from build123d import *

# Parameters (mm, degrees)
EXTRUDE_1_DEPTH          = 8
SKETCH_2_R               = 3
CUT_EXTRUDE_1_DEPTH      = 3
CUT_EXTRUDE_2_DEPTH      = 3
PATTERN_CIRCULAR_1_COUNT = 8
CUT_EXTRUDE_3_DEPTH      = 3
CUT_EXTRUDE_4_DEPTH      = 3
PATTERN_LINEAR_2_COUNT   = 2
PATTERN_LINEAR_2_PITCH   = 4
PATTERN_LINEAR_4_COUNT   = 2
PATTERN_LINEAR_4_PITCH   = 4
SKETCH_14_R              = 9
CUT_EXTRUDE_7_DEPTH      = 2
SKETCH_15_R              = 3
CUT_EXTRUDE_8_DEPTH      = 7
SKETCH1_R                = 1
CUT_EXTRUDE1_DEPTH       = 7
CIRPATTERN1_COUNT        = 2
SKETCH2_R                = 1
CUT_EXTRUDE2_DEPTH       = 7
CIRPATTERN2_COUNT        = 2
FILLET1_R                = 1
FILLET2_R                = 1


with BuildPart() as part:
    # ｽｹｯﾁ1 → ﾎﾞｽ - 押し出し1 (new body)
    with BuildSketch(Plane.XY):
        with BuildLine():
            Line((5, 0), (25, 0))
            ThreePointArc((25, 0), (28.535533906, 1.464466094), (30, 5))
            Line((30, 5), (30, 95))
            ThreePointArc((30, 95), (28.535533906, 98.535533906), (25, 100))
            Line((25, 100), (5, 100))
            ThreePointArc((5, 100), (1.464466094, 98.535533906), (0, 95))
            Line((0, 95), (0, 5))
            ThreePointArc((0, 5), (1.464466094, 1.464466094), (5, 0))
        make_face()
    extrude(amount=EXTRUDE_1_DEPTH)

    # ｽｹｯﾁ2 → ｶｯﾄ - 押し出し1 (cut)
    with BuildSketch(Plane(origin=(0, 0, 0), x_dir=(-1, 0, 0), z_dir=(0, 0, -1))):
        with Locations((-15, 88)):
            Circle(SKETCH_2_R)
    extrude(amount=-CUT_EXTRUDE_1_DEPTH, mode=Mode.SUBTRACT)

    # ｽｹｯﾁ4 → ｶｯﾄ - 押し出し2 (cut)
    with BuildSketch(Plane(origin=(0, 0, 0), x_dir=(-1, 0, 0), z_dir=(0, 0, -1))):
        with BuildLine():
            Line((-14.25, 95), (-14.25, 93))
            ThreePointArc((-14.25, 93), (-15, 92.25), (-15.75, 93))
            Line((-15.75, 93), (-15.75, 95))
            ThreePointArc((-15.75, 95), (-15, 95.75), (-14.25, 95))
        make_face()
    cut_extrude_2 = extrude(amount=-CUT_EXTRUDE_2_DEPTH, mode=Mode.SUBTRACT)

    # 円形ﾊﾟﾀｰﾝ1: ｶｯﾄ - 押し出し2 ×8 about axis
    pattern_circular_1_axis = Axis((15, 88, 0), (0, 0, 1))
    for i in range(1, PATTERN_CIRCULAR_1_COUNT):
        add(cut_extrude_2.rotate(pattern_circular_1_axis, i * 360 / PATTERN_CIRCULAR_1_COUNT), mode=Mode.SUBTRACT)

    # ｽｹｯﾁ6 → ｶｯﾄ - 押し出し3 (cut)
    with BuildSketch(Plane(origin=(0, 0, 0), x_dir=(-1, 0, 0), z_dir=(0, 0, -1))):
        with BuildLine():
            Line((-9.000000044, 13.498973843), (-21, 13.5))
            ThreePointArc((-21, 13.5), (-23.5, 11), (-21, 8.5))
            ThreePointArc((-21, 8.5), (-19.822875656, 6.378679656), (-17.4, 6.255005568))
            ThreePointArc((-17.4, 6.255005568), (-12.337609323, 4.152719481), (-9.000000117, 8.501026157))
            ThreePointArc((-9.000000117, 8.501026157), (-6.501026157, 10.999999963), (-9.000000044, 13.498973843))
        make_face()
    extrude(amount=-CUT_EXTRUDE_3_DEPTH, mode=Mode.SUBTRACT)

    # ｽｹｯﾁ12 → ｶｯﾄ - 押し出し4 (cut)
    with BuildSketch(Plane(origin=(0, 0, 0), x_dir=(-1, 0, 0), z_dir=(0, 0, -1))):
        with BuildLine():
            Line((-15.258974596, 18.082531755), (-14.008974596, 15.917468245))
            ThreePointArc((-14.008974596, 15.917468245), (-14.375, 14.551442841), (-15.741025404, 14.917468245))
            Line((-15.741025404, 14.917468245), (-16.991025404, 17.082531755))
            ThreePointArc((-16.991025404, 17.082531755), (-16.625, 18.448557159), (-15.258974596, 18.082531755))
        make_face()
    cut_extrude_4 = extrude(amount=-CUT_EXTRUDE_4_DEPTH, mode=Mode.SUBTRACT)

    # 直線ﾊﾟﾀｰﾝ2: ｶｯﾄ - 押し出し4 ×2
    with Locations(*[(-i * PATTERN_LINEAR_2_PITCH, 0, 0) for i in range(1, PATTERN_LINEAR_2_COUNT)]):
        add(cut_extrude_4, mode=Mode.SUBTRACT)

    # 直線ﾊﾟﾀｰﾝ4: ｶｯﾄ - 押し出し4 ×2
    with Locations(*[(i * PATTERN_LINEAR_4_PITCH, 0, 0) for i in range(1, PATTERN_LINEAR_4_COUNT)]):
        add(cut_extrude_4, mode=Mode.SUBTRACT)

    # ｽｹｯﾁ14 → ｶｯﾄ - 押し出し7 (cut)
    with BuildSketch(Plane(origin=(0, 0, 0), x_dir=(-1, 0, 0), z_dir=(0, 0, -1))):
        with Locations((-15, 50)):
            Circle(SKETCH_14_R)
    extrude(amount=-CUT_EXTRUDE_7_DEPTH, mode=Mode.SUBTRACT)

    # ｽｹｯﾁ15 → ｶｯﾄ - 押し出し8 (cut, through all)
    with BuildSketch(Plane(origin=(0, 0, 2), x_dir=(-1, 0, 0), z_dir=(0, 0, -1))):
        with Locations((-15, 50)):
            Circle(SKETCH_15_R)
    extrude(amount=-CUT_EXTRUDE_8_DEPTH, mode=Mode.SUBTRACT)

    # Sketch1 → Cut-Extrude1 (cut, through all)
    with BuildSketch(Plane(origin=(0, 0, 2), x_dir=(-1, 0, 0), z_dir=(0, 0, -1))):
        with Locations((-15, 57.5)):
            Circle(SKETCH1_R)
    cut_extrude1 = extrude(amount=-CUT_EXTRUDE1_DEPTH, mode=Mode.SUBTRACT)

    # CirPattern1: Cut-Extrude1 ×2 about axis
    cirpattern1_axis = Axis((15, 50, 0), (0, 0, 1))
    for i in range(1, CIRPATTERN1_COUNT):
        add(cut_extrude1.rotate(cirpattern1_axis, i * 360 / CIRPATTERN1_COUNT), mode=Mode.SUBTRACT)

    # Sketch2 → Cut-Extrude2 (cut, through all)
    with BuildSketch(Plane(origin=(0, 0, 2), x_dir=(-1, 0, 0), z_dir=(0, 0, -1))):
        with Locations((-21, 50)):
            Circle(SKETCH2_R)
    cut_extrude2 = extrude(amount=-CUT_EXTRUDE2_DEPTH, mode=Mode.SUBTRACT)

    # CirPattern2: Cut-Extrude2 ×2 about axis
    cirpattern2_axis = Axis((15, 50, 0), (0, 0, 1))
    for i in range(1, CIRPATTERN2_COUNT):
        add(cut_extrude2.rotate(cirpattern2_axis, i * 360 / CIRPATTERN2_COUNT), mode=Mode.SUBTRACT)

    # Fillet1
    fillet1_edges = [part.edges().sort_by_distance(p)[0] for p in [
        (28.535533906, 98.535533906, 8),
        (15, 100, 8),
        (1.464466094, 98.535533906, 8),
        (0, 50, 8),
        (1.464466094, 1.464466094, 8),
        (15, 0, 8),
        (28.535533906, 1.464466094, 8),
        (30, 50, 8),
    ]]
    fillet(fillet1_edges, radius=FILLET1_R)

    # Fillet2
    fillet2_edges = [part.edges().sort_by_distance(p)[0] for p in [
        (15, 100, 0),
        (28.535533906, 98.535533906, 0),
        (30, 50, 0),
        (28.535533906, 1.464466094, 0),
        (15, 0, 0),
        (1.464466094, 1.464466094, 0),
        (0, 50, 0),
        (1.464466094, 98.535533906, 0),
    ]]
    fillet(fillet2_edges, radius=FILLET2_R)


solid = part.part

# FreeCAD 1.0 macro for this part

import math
import FreeCAD as App
import Part
import Sketcher
Q = App.Units.Quantity


def edges_at(feature, points):
    """Names of the edges that pass closest to the given points."""
    edges = feature.Shape.Edges
    near = lambda p: min(range(len(edges)), key=lambda i: edges[i].distToShape(Part.Vertex(*p))[0])
    return sorted({f"Edge{near(p) + 1}" for p in points})

doc = App.newDocument("Part")
body = doc.addObject("PartDesign::Body", "Body")

# Sketch on XY plane
sketch1 = body.newObject("Sketcher::SketchObject", "Sketch")
sketch1.AttachmentSupport = (doc.getObject("XY_Plane"), [""])
sketch1.MapMode = "FlatFace"
sketch1.addGeometry(Part.LineSegment(App.Vector(5, 0, 0), App.Vector(25, 0, 0)), False)
sketch1.addGeometry(Part.ArcOfCircle(Part.Circle(App.Vector(25, 5, 0), App.Vector(0, 0, 1), 5), math.radians(-90), math.radians(0)), False)
sketch1.addGeometry(Part.LineSegment(App.Vector(30, 5, 0), App.Vector(30, 95, 0)), False)
sketch1.addGeometry(Part.ArcOfCircle(Part.Circle(App.Vector(25, 95, 0), App.Vector(0, 0, 1), 5), math.radians(0), math.radians(90)), False)
sketch1.addGeometry(Part.LineSegment(App.Vector(25, 100, 0), App.Vector(5, 100, 0)), False)
sketch1.addGeometry(Part.ArcOfCircle(Part.Circle(App.Vector(5, 95, 0), App.Vector(0, 0, 1), 5), math.radians(90), math.radians(180)), False)
sketch1.addGeometry(Part.LineSegment(App.Vector(0, 95, 0), App.Vector(0, 5, 0)), False)
sketch1.addGeometry(Part.ArcOfCircle(Part.Circle(App.Vector(5, 5, 0), App.Vector(0, 0, 1), 5), math.radians(180), math.radians(270)), False)
sketch1.addConstraint(Sketcher.Constraint("Tangent", 0, 2, 1, 1))
sketch1.addConstraint(Sketcher.Constraint("Tangent", 1, 2, 2, 1))
sketch1.addConstraint(Sketcher.Constraint("Tangent", 2, 2, 3, 1))
sketch1.addConstraint(Sketcher.Constraint("Tangent", 3, 2, 4, 1))
sketch1.addConstraint(Sketcher.Constraint("Tangent", 4, 2, 5, 1))
sketch1.addConstraint(Sketcher.Constraint("Tangent", 5, 2, 6, 1))
sketch1.addConstraint(Sketcher.Constraint("Tangent", 6, 2, 7, 1))
sketch1.addConstraint(Sketcher.Constraint("Tangent", 7, 2, 0, 1))
sketch1.addConstraint(Sketcher.Constraint("Horizontal", 0))
sketch1.addConstraint(Sketcher.Constraint("Vertical", 2))
sketch1.addConstraint(Sketcher.Constraint("Horizontal", 4))
sketch1.addConstraint(Sketcher.Constraint("Vertical", 6))
sketch1.addConstraint(Sketcher.Constraint("Equal", 1, 3))
sketch1.addConstraint(Sketcher.Constraint("Equal", 3, 5))
sketch1.addConstraint(Sketcher.Constraint("Equal", 5, 7))
sketch1.addConstraint(Sketcher.Constraint("PointOnObject", 0, 2, -1))
sketch1.addConstraint(Sketcher.Constraint("PointOnObject", 5, 2, -2))
sketch1.addConstraint(Sketcher.Constraint("Radius", 1, 5.0))
sketch1.addConstraint(Sketcher.Constraint("DistanceX", 0, 1, 0, 2, 20.0))
sketch1.addConstraint(Sketcher.Constraint("DistanceY", 2, 1, 2, 2, 90.0))
pad1 = body.newObject("PartDesign::Pad", "Pad")
pad1.Profile = sketch1
pad1.Length = 8

# Sketch on XY plane
sketch2 = body.newObject("Sketcher::SketchObject", "Sketch001")
sketch2.AttachmentSupport = (doc.getObject("XY_Plane"), [""])
sketch2.MapMode = "FlatFace"
sketch2.addGeometry(Part.Circle(App.Vector(15, 88, 0), App.Vector(0, 0, 1), 3), False)
sketch2.addConstraint(Sketcher.Constraint("Diameter", 0, 6.0))
sketch2.addConstraint(Sketcher.Constraint("DistanceX", -1, 1, 0, 3, 15.0))
sketch2.addConstraint(Sketcher.Constraint("DistanceY", -1, 1, 0, 3, 88.0))
pocket1 = body.newObject("PartDesign::Pocket", "Pocket")
pocket1.Profile = sketch2
pocket1.Length = 3
pocket1.Reversed = True

# Sketch on XY plane
sketch3 = body.newObject("Sketcher::SketchObject", "Sketch002")
sketch3.AttachmentSupport = (doc.getObject("XY_Plane"), [""])
sketch3.MapMode = "FlatFace"
sketch3.addGeometry(Part.LineSegment(App.Vector(14.2, 93, 0), App.Vector(14.2, 95, 0)), False)
sketch3.addGeometry(Part.ArcOfCircle(Part.Circle(App.Vector(15, 95, 0), App.Vector(0, 0, 1), 0.8), math.radians(0), math.radians(180)), False)
sketch3.addGeometry(Part.LineSegment(App.Vector(15.8, 95, 0), App.Vector(15.8, 93, 0)), False)
sketch3.addGeometry(Part.ArcOfCircle(Part.Circle(App.Vector(15, 93, 0), App.Vector(0, 0, 1), 0.8), math.radians(180), math.radians(360)), False)
sketch3.addConstraint(Sketcher.Constraint("Tangent", 0, 2, 1, 2))
sketch3.addConstraint(Sketcher.Constraint("Tangent", 1, 1, 2, 1))
sketch3.addConstraint(Sketcher.Constraint("Tangent", 2, 2, 3, 2))
sketch3.addConstraint(Sketcher.Constraint("Tangent", 3, 1, 0, 1))
sketch3.addConstraint(Sketcher.Constraint("Vertical", 0))
sketch3.addConstraint(Sketcher.Constraint("Vertical", 2))
sketch3.addConstraint(Sketcher.Constraint("DistanceY", 0, 1, 0, 2, 2.0))
sketch3.addConstraint(Sketcher.Constraint("Radius", 1, 0.75))
sketch3.addConstraint(Sketcher.Constraint("DistanceX", -1, 1, 1, 3, 15.0))
sketch3.addConstraint(Sketcher.Constraint("DistanceY", -1, 1, 1, 3, 95.0))
pocket2 = body.newObject("PartDesign::Pocket", "Pocket001")
pocket2.Profile = sketch3
pocket2.Length = 3
pocket2.Reversed = True
doc.recompute()

datumline = body.newObject("PartDesign::Line", "DatumLine")
datumline.Placement = App.Placement(App.Vector(15, 88, 0), App.Rotation(App.Vector(0, 0, 1), App.Vector(0, 0, 1)))
polarpattern = body.newObject("PartDesign::PolarPattern", "PolarPattern")
polarpattern.Originals = [pocket2]
polarpattern.Axis = (datumline, [""])
polarpattern.Angle = 360
polarpattern.Occurrences = 8
body.Tip = polarpattern

# Sketch on XY plane
sketch4 = body.newObject("Sketcher::SketchObject", "Sketch003")
sketch4.AttachmentSupport = (doc.getObject("XY_Plane"), [""])
sketch4.MapMode = "FlatFace"
sketch4.addGeometry(Part.LineSegment(App.Vector(9, 13.5, 0), App.Vector(21, 13.5, 0)), False)
sketch4.addGeometry(Part.ArcOfCircle(Part.Circle(App.Vector(21, 11, 0), App.Vector(0, 0, 1), 2.5), math.radians(-90), math.radians(90)), False)
sketch4.addGeometry(Part.ArcOfCircle(Part.Circle(App.Vector(18.5, 8.5, 0), App.Vector(0, 0, 1), 2.5), math.radians(-116), math.radians(0)), False)
sketch4.addGeometry(Part.ArcOfCircle(Part.Circle(App.Vector(13.5, 8.5, 0), App.Vector(0, 0, 1), 4.5), math.radians(180), math.radians(330)), False)
sketch4.addGeometry(Part.ArcOfCircle(Part.Circle(App.Vector(9, 11, 0), App.Vector(0, 0, 1), 2.5), math.radians(90), math.radians(270)), False)
sketch4.addConstraint(Sketcher.Constraint("Coincident", 0, 2, 1, 2))
sketch4.addConstraint(Sketcher.Constraint("Coincident", 1, 1, 2, 2))
sketch4.addConstraint(Sketcher.Constraint("Coincident", 2, 1, 3, 2))
sketch4.addConstraint(Sketcher.Constraint("Coincident", 3, 1, 4, 2))
sketch4.addConstraint(Sketcher.Constraint("Coincident", 4, 1, 0, 1))
sketch4.addConstraint(Sketcher.Constraint("Equal", 1, 2))
sketch4.addConstraint(Sketcher.Constraint("Horizontal", 2, 3, 3, 3))
sketch4.addConstraint(Sketcher.Constraint("Horizontal", 1, 3, 4, 3))
sketch4.addConstraint(Sketcher.Constraint("Horizontal", 3, 3, 1, 1))
sketch4.addConstraint(Sketcher.Constraint("Vertical", 1, 3, 0, 2))
sketch4.addConstraint(Sketcher.Constraint("Vertical", 0, 2, 1, 1))
sketch4.addConstraint(Sketcher.Constraint("Vertical", 4, 3, 3, 1))
sketch4.addConstraint(Sketcher.Constraint("Vertical", 3, 1, 4, 1))
sketch4.addConstraint(Sketcher.Constraint("Radius", 1, 2.5))
sketch4.addConstraint(Sketcher.Constraint("Radius", 3, 4.5))
sketch4.addConstraint(Sketcher.Constraint("Distance", 0, 12.0))
sketch4.addConstraint(Sketcher.Constraint("DistanceX", -1, 1, 1, 3, 21.0))
sketch4.addConstraint(Sketcher.Constraint("DistanceY", -1, 1, 1, 3, 11.0))
sketch4.addConstraint(Sketcher.Constraint("Radius", 4, 2.498974))
pocket3 = body.newObject("PartDesign::Pocket", "Pocket002")
pocket3.Profile = sketch4
pocket3.Length = 3
pocket3.Reversed = True

# Sketch on XY plane
sketch5 = body.newObject("Sketcher::SketchObject", "Sketch004")
sketch5.AttachmentSupport = (doc.getObject("XY_Plane"), [""])
sketch5.MapMode = "FlatFace"
sketch5.addGeometry(Part.LineSegment(App.Vector(14, 15.9, 0), App.Vector(15.3, 18.1, 0)), False)
sketch5.addGeometry(Part.ArcOfCircle(Part.Circle(App.Vector(16.1, 17.6, 0), App.Vector(0, 0, 1), 1), math.radians(-30), math.radians(150)), False)
sketch5.addGeometry(Part.LineSegment(App.Vector(17, 17.1, 0), App.Vector(15.7, 14.9, 0)), False)
sketch5.addGeometry(Part.ArcOfCircle(Part.Circle(App.Vector(14.9, 15.4, 0), App.Vector(0, 0, 1), 1), math.radians(150), math.radians(330)), False)
sketch5.addConstraint(Sketcher.Constraint("Tangent", 0, 2, 1, 2))
sketch5.addConstraint(Sketcher.Constraint("Tangent", 1, 1, 2, 1))
sketch5.addConstraint(Sketcher.Constraint("Tangent", 2, 2, 3, 2))
sketch5.addConstraint(Sketcher.Constraint("Tangent", 3, 1, 0, 1))
sketch5.addConstraint(Sketcher.Constraint("Equal", 1, 3))
sketch5.addConstraint(Sketcher.Constraint("Radius", 1, 1.0))
sketch5.addConstraint(Sketcher.Constraint("Angle", 0, Q("60 deg")))
sketch5.addConstraint(Sketcher.Constraint("Distance", 0, 2.5))
sketch5.addConstraint(Sketcher.Constraint("DistanceX", -1, 1, 1, 3, 16.125))
sketch5.addConstraint(Sketcher.Constraint("DistanceY", -1, 1, 1, 3, 17.582532))
pocket4 = body.newObject("PartDesign::Pocket", "Pocket003")
pocket4.Profile = sketch5
pocket4.Length = 3
pocket4.Reversed = True
doc.recompute()

linearpattern = body.newObject("PartDesign::LinearPattern", "LinearPattern")
linearpattern.Originals = [pocket4]
linearpattern.Direction = (doc.getObject("X_Axis"), [""])
linearpattern.Mode = "offset"
linearpattern.Offset = 4
linearpattern.Occurrences = 2
linearpattern.Reversed = True
body.Tip = linearpattern
doc.recompute()

linearpattern2 = body.newObject("PartDesign::LinearPattern", "LinearPattern001")
linearpattern2.Originals = [pocket4]
linearpattern2.Direction = (doc.getObject("X_Axis"), [""])
linearpattern2.Mode = "offset"
linearpattern2.Offset = 4
linearpattern2.Occurrences = 2
body.Tip = linearpattern2

# Sketch on XY plane
sketch6 = body.newObject("Sketcher::SketchObject", "Sketch005")
sketch6.AttachmentSupport = (doc.getObject("XY_Plane"), [""])
sketch6.MapMode = "FlatFace"
sketch6.addGeometry(Part.Circle(App.Vector(15, 50, 0), App.Vector(0, 0, 1), 9), False)
sketch6.addConstraint(Sketcher.Constraint("Diameter", 0, 18.0))
sketch6.addConstraint(Sketcher.Constraint("DistanceX", -1, 1, 0, 3, 15.0))
sketch6.addConstraint(Sketcher.Constraint("DistanceY", -1, 1, 0, 3, 50.0))
pocket5 = body.newObject("PartDesign::Pocket", "Pocket004")
pocket5.Profile = sketch6
pocket5.Length = 2
pocket5.Reversed = True

# Sketch on XY plane
sketch7 = body.newObject("Sketcher::SketchObject", "Sketch006")
sketch7.AttachmentSupport = (doc.getObject("XY_Plane"), [""])
sketch7.MapMode = "FlatFace"
sketch7.AttachmentOffset = App.Placement(App.Vector(0, 0, 2), App.Rotation())
sketch7.addGeometry(Part.Circle(App.Vector(15, 50, 0), App.Vector(0, 0, 1), 3), False)
sketch7.addConstraint(Sketcher.Constraint("Diameter", 0, 6.0))
sketch7.addConstraint(Sketcher.Constraint("DistanceX", -1, 1, 0, 3, 15.0))
sketch7.addConstraint(Sketcher.Constraint("DistanceY", -1, 1, 0, 3, 50.0))
pocket6 = body.newObject("PartDesign::Pocket", "Pocket005")
pocket6.Profile = sketch7
pocket6.Type = "ThroughAll"
pocket6.Reversed = True

# Sketch on XY plane
sketch8 = body.newObject("Sketcher::SketchObject", "Sketch007")
sketch8.AttachmentSupport = (doc.getObject("XY_Plane"), [""])
sketch8.MapMode = "FlatFace"
sketch8.AttachmentOffset = App.Placement(App.Vector(0, 0, 2), App.Rotation())
sketch8.addGeometry(Part.Circle(App.Vector(15, 57.5, 0), App.Vector(0, 0, 1), 1), False)
sketch8.addConstraint(Sketcher.Constraint("Diameter", 0, 2.0))
sketch8.addConstraint(Sketcher.Constraint("DistanceX", -1, 1, 0, 3, 15.0))
sketch8.addConstraint(Sketcher.Constraint("DistanceY", -1, 1, 0, 3, 57.5))
pocket7 = body.newObject("PartDesign::Pocket", "Pocket006")
pocket7.Profile = sketch8
pocket7.Type = "ThroughAll"
pocket7.Reversed = True
doc.recompute()

datumline2 = body.newObject("PartDesign::Line", "DatumLine001")
datumline2.Placement = App.Placement(App.Vector(15, 50, 0), App.Rotation(App.Vector(0, 0, 1), App.Vector(0, 0, 1)))
polarpattern2 = body.newObject("PartDesign::PolarPattern", "PolarPattern001")
polarpattern2.Originals = [pocket7]
polarpattern2.Axis = (datumline2, [""])
polarpattern2.Angle = 360
polarpattern2.Occurrences = 2
body.Tip = polarpattern2

# Sketch on XY plane
sketch9 = body.newObject("Sketcher::SketchObject", "Sketch008")
sketch9.AttachmentSupport = (doc.getObject("XY_Plane"), [""])
sketch9.MapMode = "FlatFace"
sketch9.AttachmentOffset = App.Placement(App.Vector(0, 0, 2), App.Rotation())
sketch9.addGeometry(Part.Circle(App.Vector(21, 50, 0), App.Vector(0, 0, 1), 1), False)
sketch9.addConstraint(Sketcher.Constraint("Diameter", 0, 2.0))
sketch9.addConstraint(Sketcher.Constraint("DistanceX", -1, 1, 0, 3, 21.0))
sketch9.addConstraint(Sketcher.Constraint("DistanceY", -1, 1, 0, 3, 50.0))
pocket8 = body.newObject("PartDesign::Pocket", "Pocket007")
pocket8.Profile = sketch9
pocket8.Type = "ThroughAll"
pocket8.Reversed = True
doc.recompute()

datumline3 = body.newObject("PartDesign::Line", "DatumLine002")
datumline3.Placement = App.Placement(App.Vector(15, 50, 0), App.Rotation(App.Vector(0, 0, 1), App.Vector(0, 0, 1)))
polarpattern3 = body.newObject("PartDesign::PolarPattern", "PolarPattern002")
polarpattern3.Originals = [pocket8]
polarpattern3.Axis = (datumline3, [""])
polarpattern3.Angle = 360
polarpattern3.Occurrences = 2
body.Tip = polarpattern3
doc.recompute()

fillet = body.newObject("PartDesign::Fillet", "Fillet")
fillet.Base = (polarpattern3, edges_at(polarpattern3, [
    (28.536, 98.536, 8),
    (15, 100, 8),
    (1.464, 98.536, 8),
    (0, 50, 8),
    (1.464, 1.464, 8),
    (15, 0, 8),
    (28.536, 1.464, 8),
    (30, 50, 8),
]))
fillet.Radius = 1
doc.recompute()

fillet2 = body.newObject("PartDesign::Fillet", "Fillet001")
fillet2.Base = (fillet, edges_at(fillet, [
    (15, 100, 0),
    (28.536, 98.536, 0),
    (30, 50, 0),
    (28.536, 1.464, 0),
    (15, 0, 0),
    (1.464, 1.464, 0),
    (0, 50, 0),
    (1.464, 98.536, 0),
]))
fillet2.Radius = 1

doc.recompute()
